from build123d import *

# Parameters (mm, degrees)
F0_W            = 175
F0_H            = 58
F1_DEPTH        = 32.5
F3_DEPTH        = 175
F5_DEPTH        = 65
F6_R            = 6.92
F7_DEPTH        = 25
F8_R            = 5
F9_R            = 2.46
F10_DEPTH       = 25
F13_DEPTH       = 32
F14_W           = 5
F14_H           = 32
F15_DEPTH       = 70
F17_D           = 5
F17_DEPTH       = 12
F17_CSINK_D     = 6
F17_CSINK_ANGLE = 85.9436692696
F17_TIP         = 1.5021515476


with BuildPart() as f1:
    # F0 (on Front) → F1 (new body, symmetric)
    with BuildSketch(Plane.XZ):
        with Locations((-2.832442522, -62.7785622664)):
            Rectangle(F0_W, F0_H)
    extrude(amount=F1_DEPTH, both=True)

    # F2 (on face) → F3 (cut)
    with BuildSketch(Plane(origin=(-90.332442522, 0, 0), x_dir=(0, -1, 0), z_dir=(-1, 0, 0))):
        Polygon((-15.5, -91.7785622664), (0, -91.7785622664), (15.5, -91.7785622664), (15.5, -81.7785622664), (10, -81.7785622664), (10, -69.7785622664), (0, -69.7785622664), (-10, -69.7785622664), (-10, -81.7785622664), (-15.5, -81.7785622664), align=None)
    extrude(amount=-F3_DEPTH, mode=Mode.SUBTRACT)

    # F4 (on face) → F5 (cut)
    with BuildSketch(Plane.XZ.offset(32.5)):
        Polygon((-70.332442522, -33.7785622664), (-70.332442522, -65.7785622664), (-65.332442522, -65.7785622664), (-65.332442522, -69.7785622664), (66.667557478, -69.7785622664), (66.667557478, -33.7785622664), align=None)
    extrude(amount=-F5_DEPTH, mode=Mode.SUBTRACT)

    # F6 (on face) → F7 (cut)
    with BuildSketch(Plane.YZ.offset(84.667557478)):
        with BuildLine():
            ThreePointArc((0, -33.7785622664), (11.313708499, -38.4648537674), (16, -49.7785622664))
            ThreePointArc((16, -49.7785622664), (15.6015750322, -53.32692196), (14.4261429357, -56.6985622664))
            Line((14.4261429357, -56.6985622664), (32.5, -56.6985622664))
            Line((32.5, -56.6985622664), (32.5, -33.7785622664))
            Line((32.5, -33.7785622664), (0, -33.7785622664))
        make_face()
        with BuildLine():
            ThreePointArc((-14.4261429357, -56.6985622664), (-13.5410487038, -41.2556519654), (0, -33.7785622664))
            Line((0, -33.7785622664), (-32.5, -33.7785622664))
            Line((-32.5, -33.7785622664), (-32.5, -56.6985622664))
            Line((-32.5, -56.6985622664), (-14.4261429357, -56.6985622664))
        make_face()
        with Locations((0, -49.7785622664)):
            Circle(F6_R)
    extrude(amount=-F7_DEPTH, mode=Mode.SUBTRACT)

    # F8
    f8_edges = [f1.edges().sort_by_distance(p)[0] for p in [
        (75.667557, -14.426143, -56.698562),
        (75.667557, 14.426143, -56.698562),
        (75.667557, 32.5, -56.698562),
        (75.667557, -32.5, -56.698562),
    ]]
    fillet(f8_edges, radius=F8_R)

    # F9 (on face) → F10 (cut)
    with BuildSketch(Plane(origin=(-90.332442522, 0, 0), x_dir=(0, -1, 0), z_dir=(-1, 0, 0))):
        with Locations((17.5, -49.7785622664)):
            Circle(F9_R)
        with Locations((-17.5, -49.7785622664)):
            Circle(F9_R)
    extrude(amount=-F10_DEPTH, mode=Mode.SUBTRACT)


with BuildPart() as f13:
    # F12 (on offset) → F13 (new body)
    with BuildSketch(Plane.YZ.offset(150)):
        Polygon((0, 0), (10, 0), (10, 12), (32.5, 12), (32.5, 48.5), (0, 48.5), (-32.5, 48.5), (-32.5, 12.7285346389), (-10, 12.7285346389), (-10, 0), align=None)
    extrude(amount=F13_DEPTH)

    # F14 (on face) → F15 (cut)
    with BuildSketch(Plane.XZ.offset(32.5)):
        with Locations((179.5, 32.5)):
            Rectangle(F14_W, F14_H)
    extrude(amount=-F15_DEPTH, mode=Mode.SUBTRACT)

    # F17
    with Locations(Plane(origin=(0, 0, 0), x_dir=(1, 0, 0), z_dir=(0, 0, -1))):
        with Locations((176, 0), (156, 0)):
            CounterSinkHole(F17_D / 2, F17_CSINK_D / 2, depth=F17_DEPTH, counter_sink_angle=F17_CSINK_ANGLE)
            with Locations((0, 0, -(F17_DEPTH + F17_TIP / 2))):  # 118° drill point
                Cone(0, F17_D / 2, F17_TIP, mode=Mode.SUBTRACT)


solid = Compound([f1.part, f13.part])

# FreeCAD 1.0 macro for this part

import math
import FreeCAD as App
import Part
import Sketcher
Q = App.Units.Quantity


def edges_at(feature, points):
    """Names of the edges that pass closest to the given points."""
    edges = feature.Shape.Edges
    near = lambda p: min(range(len(edges)), key=lambda i: edges[i].distToShape(Part.Vertex(*p))[0])
    return sorted({f"Edge{near(p) + 1}" for p in points})


def add_polygon(sketch, points):
    """Adds a closed chain of lines whose ends are joined by coincident constraints."""
    first, n = sketch.GeometryCount, len(points)
    for a, b in zip(points, points[1:] + points[:1]):
        sketch.addGeometry(Part.LineSegment(App.Vector(*a, 0), App.Vector(*b, 0)), False)
    for i in range(n):
        sketch.addConstraint(Sketcher.Constraint("Coincident", first + i, 2, first + (i + 1) % n, 1))

doc = App.newDocument("Part")
params = doc.addObject("Spreadsheet::Sheet", "Params")
for row, (alias, value) in enumerate([
    ("sketch1_width", "175 mm"),
    ("sketch1_height", "58 mm"),
    ("pad1_length", "65 mm"),
    ("sketch2_width", "31 mm"),
    ("sketch2_width2", "20 mm"),
    ("sketch2_height", "10 mm"),
    ("sketch2_height2", "12 mm"),
    ("pocket1_length", "175 mm"),
    ("sketch3_width", "5 mm"),
    ("sketch3_width2", "132 mm"),
    ("sketch3_height", "32 mm"),
    ("sketch3_height2", "4 mm"),
    ("pocket2_length", "65 mm"),
    ("sketch4_radius", "16 mm"),
    ("sketch4_diameter", "13.84 mm"),
    ("sketch4_width", "32.5 mm"),
    ("sketch4_height", "22.92 mm"),
    ("pocket3_length", "25 mm"),
    ("fillet_radius", "5 mm"),
    ("sketch5_diameter", "4.92 mm"),
    ("pocket4_length", "25 mm"),
    ("sketch6_width", "65 mm"),
    ("sketch6_width2", "20 mm"),
    ("sketch6_height", "12 mm"),
    ("sketch6_height2", "36.5 mm"),
    ("pad2_length", "32 mm"),
    ("sketch7_width", "5 mm"),
    ("sketch7_height", "32 mm"),
    ("pocket5_length", "70 mm"),
    ("sketch8_diameter", "5 mm"),
    ("hole_diameter", "5 mm"),
    ("hole_depth", "12 mm"),
    ("hole_csink_diameter", "6 mm"),
], start=1):
    params.set(f"A{row}", alias)
    params.set(f"B{row}", "=" + value)
    params.setAlias(f"B{row}", alias)

body = doc.addObject("PartDesign::Body", "Body")

# Sketch on XZ plane
sketch1 = body.newObject("Sketcher::SketchObject", "Sketch")
sketch1.AttachmentSupport = (doc.getObject("XZ_Plane"), [""])
sketch1.MapMode = "FlatFace"
add_polygon(sketch1, [(-90, -34), (-90, -92), (85, -92), (85, -34)])  # lines 0-3
sketch1.addConstraint([
    Sketcher.Constraint("Vertical", 0),
    Sketcher.Constraint("Horizontal", 1),
    Sketcher.Constraint("Vertical", 2),
    Sketcher.Constraint("Horizontal", 3),
    Sketcher.Constraint("DistanceX", 1, 1, 1, 2, Q("175 mm")),
    Sketcher.Constraint("DistanceY", 0, 2, 0, 1, Q("58 mm")),
    Sketcher.Constraint("DistanceX", 0, 2, -1, 1, Q("90.332443 mm")),
    Sketcher.Constraint("DistanceY", 0, 2, -1, 1, Q("91.778562 mm")),
])
sketch1.setExpression("Constraints[8]", "Params.sketch1_width")
sketch1.setExpression("Constraints[9]", "Params.sketch1_height")
pad1 = body.newObject("PartDesign::Pad", "Pad")
pad1.Profile = sketch1
pad1.setExpression("Length", "Params.pad1_length")
pad1.Midplane = True

# Sketch on YZ plane
sketch2 = body.newObject("Sketcher::SketchObject", "Sketch001")
sketch2.AttachmentSupport = (doc.getObject("YZ_Plane"), [""])
sketch2.MapMode = "FlatFace"
sketch2.AttachmentOffset = App.Placement(App.Vector(0, 0, -90.332443), App.Rotation())
add_polygon(sketch2, [(16, -92), (-16, -92), (-16, -82), (-10, -82), (-10, -70), (10, -70), (10, -82), (16, -82)])  # lines 0-7
sketch2.addConstraint([
    Sketcher.Constraint("Horizontal", 0),
    Sketcher.Constraint("Vertical", 1),
    Sketcher.Constraint("Horizontal", 2),
    Sketcher.Constraint("Vertical", 3),
    Sketcher.Constraint("Horizontal", 4),
    Sketcher.Constraint("Vertical", 5),
    Sketcher.Constraint("Horizontal", 6),
    Sketcher.Constraint("Vertical", 7),
    Sketcher.Constraint("Symmetric", 2, 2, 5, 2, -2),
    Sketcher.Constraint("Equal", 2, 6),
    Sketcher.Constraint("DistanceX", 0, 2, 0, 1, Q("31 mm")),
    Sketcher.Constraint("DistanceX", 4, 1, 4, 2, Q("20 mm")),
    Sketcher.Constraint("DistanceY", 1, 1, 1, 2, Q("10 mm")),
    Sketcher.Constraint("DistanceY", 3, 1, 3, 2, Q("12 mm")),
    Sketcher.Constraint("DistanceY", 0, 2, -1, 1, Q("91.778562 mm")),
])
sketch2.setExpression("Constraints[18]", "Params.sketch2_width")
sketch2.setExpression("Constraints[19]", "Params.sketch2_width2")
sketch2.setExpression("Constraints[20]", "Params.sketch2_height")
sketch2.setExpression("Constraints[21]", "Params.sketch2_height2")
pocket1 = body.newObject("PartDesign::Pocket", "Pocket")
pocket1.Profile = sketch2
pocket1.setExpression("Length", "Params.pocket1_length")
pocket1.Reversed = True

# Sketch on XZ plane
sketch3 = body.newObject("Sketcher::SketchObject", "Sketch002")
sketch3.AttachmentSupport = (doc.getObject("XZ_Plane"), [""])
sketch3.MapMode = "FlatFace"
sketch3.AttachmentOffset = App.Placement(App.Vector(0, 0, 32.5), App.Rotation())
add_polygon(sketch3, [(-70.3, -33.8), (-70.3, -65.8), (-65.3, -65.8), (-65.3, -69.8), (66.7, -69.8), (66.7, -33.8)])  # lines 0-5
sketch3.addConstraint([
    Sketcher.Constraint("Vertical", 0),
    Sketcher.Constraint("Horizontal", 1),
    Sketcher.Constraint("Vertical", 2),
    Sketcher.Constraint("Horizontal", 3),
    Sketcher.Constraint("Vertical", 4),
    Sketcher.Constraint("Horizontal", 5),
    Sketcher.Constraint("DistanceX", 1, 1, 1, 2, Q("5 mm")),
    Sketcher.Constraint("DistanceX", 3, 1, 3, 2, Q("132 mm")),
    Sketcher.Constraint("DistanceY", 0, 2, 0, 1, Q("32 mm")),
    Sketcher.Constraint("DistanceY", 2, 2, 2, 1, Q("4 mm")),
    Sketcher.Constraint("DistanceX", 0, 2, -1, 1, Q("70.332443 mm")),
    Sketcher.Constraint("DistanceY", 0, 2, -1, 1, Q("65.778562 mm")),
])
sketch3.setExpression("Constraints[12]", "Params.sketch3_width")
sketch3.setExpression("Constraints[13]", "Params.sketch3_width2")
sketch3.setExpression("Constraints[14]", "Params.sketch3_height")
sketch3.setExpression("Constraints[15]", "Params.sketch3_height2")
pocket2 = body.newObject("PartDesign::Pocket", "Pocket001")
pocket2.Profile = sketch3
pocket2.setExpression("Length", "Params.pocket2_length")

# Sketch on YZ plane
sketch4 = body.newObject("Sketcher::SketchObject", "Sketch003")
sketch4.AttachmentSupport = (doc.getObject("YZ_Plane"), [""])
sketch4.MapMode = "FlatFace"
sketch4.AttachmentOffset = App.Placement(App.Vector(0, 0, 84.667557), App.Rotation())
sketch4.addGeometry([
    Part.ArcOfCircle(Part.Circle(App.Vector(0, -50, 0), App.Vector(0, 0, 1), 16), math.radians(0), math.radians(90)),  # 0
    Part.ArcOfCircle(Part.Circle(App.Vector(0, -50, 0), App.Vector(0, 0, 1), 16), math.radians(-26), math.radians(0)),  # 1
    Part.LineSegment(App.Vector(14, -57, 0), App.Vector(32, -57, 0)),  # 2
    Part.LineSegment(App.Vector(32, -57, 0), App.Vector(32, -34, 0)),  # 3
    Part.LineSegment(App.Vector(32, -34, 0), App.Vector(0, -34, 0)),  # 4
    Part.ArcOfCircle(Part.Circle(App.Vector(0, -50, 0), App.Vector(0, 0, 1), 16), math.radians(90), math.radians(206)),  # 5
    Part.LineSegment(App.Vector(0, -34, 0), App.Vector(-32, -34, 0)),  # 6
    Part.LineSegment(App.Vector(-32, -34, 0), App.Vector(-32, -57, 0)),  # 7
    Part.LineSegment(App.Vector(-32, -57, 0), App.Vector(-14, -57, 0)),  # 8
    Part.Circle(App.Vector(0, -50, 0), App.Vector(0, 0, 1), 7),  # 9
], False)
sketch4.addConstraint([
    Sketcher.Constraint("Tangent", 0, 1, 1, 2),
    Sketcher.Constraint("Coincident", 1, 1, 2, 1),
    Sketcher.Constraint("Coincident", 2, 2, 3, 1),
    Sketcher.Constraint("Coincident", 3, 2, 4, 1),
    Sketcher.Constraint("Tangent", 4, 2, 0, 2),
    Sketcher.Constraint("Tangent", 5, 1, 6, 1),
    Sketcher.Constraint("Coincident", 6, 2, 7, 1),
    Sketcher.Constraint("Coincident", 7, 2, 8, 1),
    Sketcher.Constraint("Coincident", 8, 2, 5, 2),
    Sketcher.Constraint("Horizontal", 2),
    Sketcher.Constraint("Vertical", 3),
    Sketcher.Constraint("Horizontal", 4),
    Sketcher.Constraint("Horizontal", 6),
    Sketcher.Constraint("Vertical", 7),
    Sketcher.Constraint("Horizontal", 8),
    Sketcher.Constraint("Coincident", 5, 3, 0, 3),
    Sketcher.Constraint("Coincident", 9, 3, 0, 3),
    Sketcher.Constraint("Equal", 0, 1),
    Sketcher.Constraint("Equal", 1, 5),
    Sketcher.Constraint("Symmetric", 2, 2, 7, 2, -2),
    Sketcher.Constraint("PointOnObject", 0, 3, -2),
    Sketcher.Constraint("Horizontal", 9, 3, 0, 1),
    Sketcher.Constraint("Radius", 0, Q("16 mm")),
    Sketcher.Constraint("Diameter", 9, Q("13.84 mm")),
    Sketcher.Constraint("DistanceX", 4, 2, 4, 1, Q("32.5 mm")),
    Sketcher.Constraint("DistanceY", 3, 1, 3, 2, Q("22.92 mm")),
    Sketcher.Constraint("DistanceY", 0, 3, -1, 1, Q("49.778562 mm")),
])
sketch4.setExpression("Constraints[22]", "Params.sketch4_radius")
sketch4.setExpression("Constraints[23]", "Params.sketch4_diameter")
sketch4.setExpression("Constraints[24]", "Params.sketch4_width")
sketch4.setExpression("Constraints[25]", "Params.sketch4_height")
pocket3 = body.newObject("PartDesign::Pocket", "Pocket002")
pocket3.Profile = sketch4
pocket3.setExpression("Length", "Params.pocket3_length")
doc.recompute()

fillet = body.newObject("PartDesign::Fillet", "Fillet")
fillet.Base = (pocket3, edges_at(pocket3, [
    (75.668, -14.426, -56.699),
    (75.668, 14.426, -56.699),
    (75.668, 32.5, -56.699),
    (75.668, -32.5, -56.699),
]))
fillet.setExpression("Radius", "Params.fillet_radius")

# Sketch on YZ plane
sketch5 = body.newObject("Sketcher::SketchObject", "Sketch004")
sketch5.AttachmentSupport = (doc.getObject("YZ_Plane"), [""])
sketch5.MapMode = "FlatFace"
sketch5.AttachmentOffset = App.Placement(App.Vector(0, 0, -90.332443), App.Rotation())
sketch5.addGeometry([
    Part.Circle(App.Vector(-17.5, -49.8, 0), App.Vector(0, 0, 1), 2.5),
    Part.Circle(App.Vector(17.5, -49.8, 0), App.Vector(0, 0, 1), 2.5),
], False)
sketch5.addConstraint([
    Sketcher.Constraint("Equal", 0, 1),
    Sketcher.Constraint("Symmetric", 0, 3, 1, 3, -2),
    Sketcher.Constraint("Diameter", 0, Q("4.92 mm")),
    Sketcher.Constraint("DistanceX", 0, 3, 1, 3, Q("35 mm")),
    Sketcher.Constraint("DistanceY", 0, 3, -1, 1, Q("49.778562 mm")),
])
sketch5.setExpression("Constraints[2]", "Params.sketch5_diameter")
pocket4 = body.newObject("PartDesign::Pocket", "Pocket003")
pocket4.Profile = sketch5
pocket4.setExpression("Length", "Params.pocket4_length")
pocket4.Reversed = True
body2 = doc.addObject("PartDesign::Body", "Body001")

# Sketch on YZ plane
sketch6 = body2.newObject("Sketcher::SketchObject", "Sketch005")
sketch6.AttachmentSupport = (doc.getObject("YZ_Plane001"), [""])
sketch6.MapMode = "FlatFace"
sketch6.AttachmentOffset = App.Placement(App.Vector(0, 0, 150), App.Rotation())
add_polygon(sketch6, [(10, 0), (10, 12), (32, 12), (32, 48), (-32, 48), (-32, 13), (-10, 13), (-10, 0)])  # lines 0-7
sketch6.addConstraint([
    Sketcher.Constraint("Vertical", 0),
    Sketcher.Constraint("Horizontal", 1),
    Sketcher.Constraint("Vertical", 2),
    Sketcher.Constraint("Horizontal", 3),
    Sketcher.Constraint("Vertical", 4),
    Sketcher.Constraint("Horizontal", 5),
    Sketcher.Constraint("Vertical", 6),
    Sketcher.Constraint("Horizontal", 7),
    Sketcher.Constraint("Symmetric", 6, 2, 7, 2, -1, 1),
    Sketcher.Constraint("Equal", 1, 5),
    Sketcher.Constraint("DistanceX", 3, 2, 3, 1, Q("65 mm")),
    Sketcher.Constraint("DistanceX", 7, 1, 7, 2, Q("20 mm")),
    Sketcher.Constraint("DistanceY", 0, 1, 0, 2, Q("12 mm")),
    Sketcher.Constraint("DistanceY", 2, 1, 2, 2, Q("36.5 mm")),
    Sketcher.Constraint("DistanceY", 4, 2, 4, 1, Q("35.771465 mm")),
])
sketch6.setExpression("Constraints[18]", "Params.sketch6_width")
sketch6.setExpression("Constraints[19]", "Params.sketch6_width2")
sketch6.setExpression("Constraints[20]", "Params.sketch6_height")
sketch6.setExpression("Constraints[21]", "Params.sketch6_height2")
pad2 = body2.newObject("PartDesign::Pad", "Pad001")
pad2.Profile = sketch6
pad2.setExpression("Length", "Params.pad2_length")

# Sketch on XZ plane
sketch7 = body2.newObject("Sketcher::SketchObject", "Sketch006")
sketch7.AttachmentSupport = (doc.getObject("XZ_Plane001"), [""])
sketch7.MapMode = "FlatFace"
sketch7.AttachmentOffset = App.Placement(App.Vector(0, 0, 32.5), App.Rotation())
add_polygon(sketch7, [(177, 48), (177, 16), (182, 16), (182, 48)])  # lines 0-3
sketch7.addConstraint([
    Sketcher.Constraint("Vertical", 0),
    Sketcher.Constraint("Horizontal", 1),
    Sketcher.Constraint("Vertical", 2),
    Sketcher.Constraint("Horizontal", 3),
    Sketcher.Constraint("DistanceX", 1, 1, 1, 2, Q("5 mm")),
    Sketcher.Constraint("DistanceY", 0, 2, 0, 1, Q("32 mm")),
    Sketcher.Constraint("DistanceX", -1, 1, 0, 2, Q("177 mm")),
    Sketcher.Constraint("DistanceY", -1, 1, 0, 2, Q("16.5 mm")),
])
sketch7.setExpression("Constraints[8]", "Params.sketch7_width")
sketch7.setExpression("Constraints[9]", "Params.sketch7_height")
pocket5 = body2.newObject("PartDesign::Pocket", "Pocket004")
pocket5.Profile = sketch7
pocket5.setExpression("Length", "Params.pocket5_length")

# Sketch on XY plane
sketch8 = body2.newObject("Sketcher::SketchObject", "Sketch007")
sketch8.AttachmentSupport = (doc.getObject("XY_Plane001"), [""])
sketch8.MapMode = "FlatFace"
sketch8.addGeometry([
    Part.Circle(App.Vector(176, 0, 0), App.Vector(0, 0, 1), 2.5),
    Part.Circle(App.Vector(156, 0, 0), App.Vector(0, 0, 1), 2.5),
], False)
sketch8.addConstraint([
    Sketcher.Constraint("Equal", 0, 1),
    Sketcher.Constraint("PointOnObject", 0, 3, -1),
    Sketcher.Constraint("PointOnObject", 1, 3, -1),
    Sketcher.Constraint("Diameter", 0, Q("5 mm")),
    Sketcher.Constraint("DistanceX", -1, 1, 0, 3, Q("176 mm")),
    Sketcher.Constraint("DistanceX", -1, 1, 1, 3, Q("156 mm")),
])
sketch8.setExpression("Constraints[3]", "Params.sketch8_diameter")
doc.recompute()
hole = body2.newObject("PartDesign::Hole", "Hole")
hole.Profile = sketch8
hole.ThreadType = "None"
hole.setExpression("Diameter", "Params.hole_diameter")
hole.DepthType = "Dimension"
hole.setExpression("Depth", "Params.hole_depth")
hole.DrillPoint = "Angled"
hole.DrillPointAngle = 118
hole.HoleCutType = "Countersink"
hole.setExpression("HoleCutDiameter", "Params.hole_csink_diameter")
hole.HoleCutCountersinkAngle = 85.943669
hole.Reversed = True

doc.recompute()
